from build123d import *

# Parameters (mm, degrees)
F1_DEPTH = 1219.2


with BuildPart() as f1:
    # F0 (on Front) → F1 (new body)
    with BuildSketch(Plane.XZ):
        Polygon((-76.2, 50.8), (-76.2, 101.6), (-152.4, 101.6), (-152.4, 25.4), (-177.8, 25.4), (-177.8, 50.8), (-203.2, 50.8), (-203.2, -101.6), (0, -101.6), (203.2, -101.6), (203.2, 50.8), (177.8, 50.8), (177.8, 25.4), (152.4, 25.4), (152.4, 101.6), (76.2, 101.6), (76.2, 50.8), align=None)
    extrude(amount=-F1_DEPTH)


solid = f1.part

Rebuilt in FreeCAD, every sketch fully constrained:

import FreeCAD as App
import Part
import Sketcher

V = App.Vector
Q = App.Units.Quantity

doc = App.newDocument("Part")
body = doc.addObject("PartDesign::Body", "Body")

# Sketch on XZ plane
sketch1 = body.newObject("Sketcher::SketchObject", "Sketch")
sketch1.AttachmentSupport = (doc.getObject("XZ_Plane"), [""])
sketch1.MapMode = "FlatFace"
sketch1.addGeometry([
    Part.LineSegment(V(-76, 51, 0), V(-76, 102, 0)),  # 0
    Part.LineSegment(V(-76, 102, 0), V(-152, 102, 0)),  # 1
    Part.LineSegment(V(-152, 102, 0), V(-152, 25, 0)),  # 2
    Part.LineSegment(V(-152, 25, 0), V(-178, 25, 0)),  # 3
    Part.LineSegment(V(-178, 25, 0), V(-178, 51, 0)),  # 4
    Part.LineSegment(V(-178, 51, 0), V(-203, 51, 0)),  # 5
    Part.LineSegment(V(-203, 51, 0), V(-203, -102, 0)),  # 6
    Part.LineSegment(V(-203, -102, 0), V(203, -102, 0)),  # 7
    Part.LineSegment(V(203, -102, 0), V(203, 51, 0)),  # 8
    Part.LineSegment(V(203, 51, 0), V(178, 51, 0)),  # 9
    Part.LineSegment(V(178, 51, 0), V(178, 25, 0)),  # 10
    Part.LineSegment(V(178, 25, 0), V(152, 25, 0)),  # 11
    Part.LineSegment(V(152, 25, 0), V(152, 102, 0)),  # 12
    Part.LineSegment(V(152, 102, 0), V(76, 102, 0)),  # 13
    Part.LineSegment(V(76, 102, 0), V(76, 51, 0)),  # 14
    Part.LineSegment(V(76, 51, 0), V(-76, 51, 0)),  # 15
], False)
sketch1.addConstraint([
    Sketcher.Constraint("Coincident", 0, 2, 1, 1),
    Sketcher.Constraint("Coincident", 1, 2, 2, 1),
    Sketcher.Constraint("Coincident", 2, 2, 3, 1),
    Sketcher.Constraint("Coincident", 3, 2, 4, 1),
    Sketcher.Constraint("Coincident", 4, 2, 5, 1),
    Sketcher.Constraint("Coincident", 5, 2, 6, 1),
    Sketcher.Constraint("Coincident", 6, 2, 7, 1),
    Sketcher.Constraint("Coincident", 7, 2, 8, 1),
    Sketcher.Constraint("Coincident", 8, 2, 9, 1),
    Sketcher.Constraint("Coincident", 9, 2, 10, 1),
    Sketcher.Constraint("Coincident", 10, 2, 11, 1),
    Sketcher.Constraint("Coincident", 11, 2, 12, 1),
    Sketcher.Constraint("Coincident", 12, 2, 13, 1),
    Sketcher.Constraint("Coincident", 13, 2, 14, 1),
    Sketcher.Constraint("Coincident", 14, 2, 15, 1),
    Sketcher.Constraint("Coincident", 15, 2, 0, 1),
    Sketcher.Constraint("Vertical", 0),
    Sketcher.Constraint("Horizontal", 1),
    Sketcher.Constraint("Vertical", 2),
    Sketcher.Constraint("Horizontal", 3),
    Sketcher.Constraint("Vertical", 4),
    Sketcher.Constraint("Horizontal", 5),
    Sketcher.Constraint("Vertical", 6),
    Sketcher.Constraint("Horizontal", 7),
    Sketcher.Constraint("Vertical", 8),
    Sketcher.Constraint("Horizontal", 9),
    Sketcher.Constraint("Vertical", 10),
    Sketcher.Constraint("Horizontal", 11),
    Sketcher.Constraint("Vertical", 12),
    Sketcher.Constraint("Horizontal", 13),
    Sketcher.Constraint("Vertical", 14),
    Sketcher.Constraint("Horizontal", 15),
    Sketcher.Constraint("Symmetric", 5, 2, 8, 2, -2),
    Sketcher.Constraint("Symmetric", 3, 2, 10, 2, -2),
    Sketcher.Constraint("Symmetric", 1, 2, 12, 2, -2),
    Sketcher.Constraint("Horizontal", 9, 2, 14, 2),
    Sketcher.Constraint("Equal", 3, 5),
    Sketcher.Constraint("Equal", 1, 13),
    Sketcher.Constraint("Equal", 13, 2),
    Sketcher.Constraint("Equal", 11, 4),
    Sketcher.Constraint("Equal", 15, 6),
    Sketcher.Constraint("DistanceX", 1, 2, 1, 1, Q("3 in")),
    Sketcher.Constraint("DistanceX", 3, 2, 3, 1, Q("1 in")),
    Sketcher.Constraint("DistanceX", 7, 1, 7, 2, Q("16 in")),
    Sketcher.Constraint("DistanceY", -1, 1, 0, 2, Q("4 in")),
])
pad1 = body.newObject("PartDesign::Pad", "Pad")
pad1.Profile = sketch1
pad1.Length = Q("48 in")
pad1.Reversed = True

doc.recompute()
